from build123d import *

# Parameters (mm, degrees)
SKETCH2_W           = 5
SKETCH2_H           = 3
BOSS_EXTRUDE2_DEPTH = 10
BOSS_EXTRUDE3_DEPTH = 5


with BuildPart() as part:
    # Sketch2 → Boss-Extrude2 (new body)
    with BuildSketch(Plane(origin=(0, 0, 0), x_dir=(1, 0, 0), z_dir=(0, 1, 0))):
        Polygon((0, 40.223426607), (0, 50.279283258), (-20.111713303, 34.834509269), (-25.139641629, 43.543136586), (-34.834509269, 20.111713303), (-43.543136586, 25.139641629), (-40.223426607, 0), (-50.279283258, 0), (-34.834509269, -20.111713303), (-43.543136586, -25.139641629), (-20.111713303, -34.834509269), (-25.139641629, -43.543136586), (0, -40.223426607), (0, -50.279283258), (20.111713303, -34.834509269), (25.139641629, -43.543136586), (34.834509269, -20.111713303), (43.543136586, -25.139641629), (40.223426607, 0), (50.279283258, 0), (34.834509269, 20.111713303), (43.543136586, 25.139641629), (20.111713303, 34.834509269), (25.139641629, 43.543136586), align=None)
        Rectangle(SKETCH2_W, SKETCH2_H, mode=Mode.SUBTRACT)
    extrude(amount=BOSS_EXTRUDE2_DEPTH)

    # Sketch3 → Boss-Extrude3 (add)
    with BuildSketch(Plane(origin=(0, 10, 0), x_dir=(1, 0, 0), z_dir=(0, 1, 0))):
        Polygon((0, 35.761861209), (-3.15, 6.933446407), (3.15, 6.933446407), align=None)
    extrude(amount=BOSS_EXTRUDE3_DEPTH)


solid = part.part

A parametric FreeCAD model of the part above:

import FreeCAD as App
import Part
import Sketcher
Q = App.Units.Quantity

doc = App.newDocument("Part")
body = doc.addObject("PartDesign::Body", "Body")

# Sketch on XZ plane
sketch1 = doc.addObject("Sketcher::SketchObject", "Sketch")
body.addObject(sketch1)
sketch1.AttachmentSupport = (doc.XZ_Plane, [""])
sketch1.MapMode = "FlatFace"
sketch1.addGeometry(Part.LineSegment(App.Vector(0, -40.2, 0), App.Vector(0, -50.3, 0)), False)
sketch1.addGeometry(Part.LineSegment(App.Vector(0, -50.3, 0), App.Vector(-20.1, -34.8, 0)), False)
sketch1.addGeometry(Part.LineSegment(App.Vector(-20.1, -34.8, 0), App.Vector(-25.1, -43.5, 0)), False)
sketch1.addGeometry(Part.LineSegment(App.Vector(-25.1, -43.5, 0), App.Vector(-34.8, -20.1, 0)), False)
sketch1.addGeometry(Part.LineSegment(App.Vector(-34.8, -20.1, 0), App.Vector(-43.5, -25.1, 0)), False)
sketch1.addGeometry(Part.LineSegment(App.Vector(-43.5, -25.1, 0), App.Vector(-40.2, 0, 0)), False)
sketch1.addGeometry(Part.LineSegment(App.Vector(-40.2, 0, 0), App.Vector(-50.3, 0, 0)), False)
sketch1.addGeometry(Part.LineSegment(App.Vector(-50.3, 0, 0), App.Vector(-34.8, 20.1, 0)), False)
sketch1.addGeometry(Part.LineSegment(App.Vector(-34.8, 20.1, 0), App.Vector(-43.5, 25.1, 0)), False)
sketch1.addGeometry(Part.LineSegment(App.Vector(-43.5, 25.1, 0), App.Vector(-20.1, 34.8, 0)), False)
sketch1.addGeometry(Part.LineSegment(App.Vector(-20.1, 34.8, 0), App.Vector(-25.1, 43.5, 0)), False)
sketch1.addGeometry(Part.LineSegment(App.Vector(-25.1, 43.5, 0), App.Vector(0, 40.2, 0)), False)
sketch1.addGeometry(Part.LineSegment(App.Vector(0, 40.2, 0), App.Vector(0, 50.3, 0)), False)
sketch1.addGeometry(Part.LineSegment(App.Vector(0, 50.3, 0), App.Vector(20.1, 34.8, 0)), False)
sketch1.addGeometry(Part.LineSegment(App.Vector(20.1, 34.8, 0), App.Vector(25.1, 43.5, 0)), False)
sketch1.addGeometry(Part.LineSegment(App.Vector(25.1, 43.5, 0), App.Vector(34.8, 20.1, 0)), False)
sketch1.addGeometry(Part.LineSegment(App.Vector(34.8, 20.1, 0), App.Vector(43.5, 25.1, 0)), False)
sketch1.addGeometry(Part.LineSegment(App.Vector(43.5, 25.1, 0), App.Vector(40.2, 0, 0)), False)
sketch1.addGeometry(Part.LineSegment(App.Vector(40.2, 0, 0), App.Vector(50.3, 0, 0)), False)
sketch1.addGeometry(Part.LineSegment(App.Vector(50.3, 0, 0), App.Vector(34.8, -20.1, 0)), False)
sketch1.addGeometry(Part.LineSegment(App.Vector(34.8, -20.1, 0), App.Vector(43.5, -25.1, 0)), False)
sketch1.addGeometry(Part.LineSegment(App.Vector(43.5, -25.1, 0), App.Vector(20.1, -34.8, 0)), False)
sketch1.addGeometry(Part.LineSegment(App.Vector(20.1, -34.8, 0), App.Vector(25.1, -43.5, 0)), False)
sketch1.addGeometry(Part.LineSegment(App.Vector(25.1, -43.5, 0), App.Vector(0, -40.2, 0)), False)
sketch1.addGeometry(Part.LineSegment(App.Vector(2.5, 1.5, 0), App.Vector(-2.5, 1.5, 0)), False)
sketch1.addGeometry(Part.LineSegment(App.Vector(-2.5, 1.5, 0), App.Vector(-2.5, -1.5, 0)), False)
sketch1.addGeometry(Part.LineSegment(App.Vector(-2.5, -1.5, 0), App.Vector(2.5, -1.5, 0)), False)
sketch1.addGeometry(Part.LineSegment(App.Vector(2.5, -1.5, 0), App.Vector(2.5, 1.5, 0)), False)
sketch1.addConstraint(Sketcher.Constraint("Coincident", 0, 2, 1, 1))
sketch1.addConstraint(Sketcher.Constraint("Coincident", 1, 2, 2, 1))
sketch1.addConstraint(Sketcher.Constraint("Coincident", 2, 2, 3, 1))
sketch1.addConstraint(Sketcher.Constraint("Coincident", 3, 2, 4, 1))
sketch1.addConstraint(Sketcher.Constraint("Coincident", 4, 2, 5, 1))
sketch1.addConstraint(Sketcher.Constraint("Coincident", 5, 2, 6, 1))
sketch1.addConstraint(Sketcher.Constraint("Coincident", 6, 2, 7, 1))
sketch1.addConstraint(Sketcher.Constraint("Coincident", 7, 2, 8, 1))
sketch1.addConstraint(Sketcher.Constraint("Coincident", 8, 2, 9, 1))
sketch1.addConstraint(Sketcher.Constraint("Coincident", 9, 2, 10, 1))
sketch1.addConstraint(Sketcher.Constraint("Coincident", 10, 2, 11, 1))
sketch1.addConstraint(Sketcher.Constraint("Coincident", 11, 2, 12, 1))
sketch1.addConstraint(Sketcher.Constraint("Coincident", 12, 2, 13, 1))
sketch1.addConstraint(Sketcher.Constraint("Coincident", 13, 2, 14, 1))
sketch1.addConstraint(Sketcher.Constraint("Coincident", 14, 2, 15, 1))
sketch1.addConstraint(Sketcher.Constraint("Coincident", 15, 2, 16, 1))
sketch1.addConstraint(Sketcher.Constraint("Coincident", 16, 2, 17, 1))
sketch1.addConstraint(Sketcher.Constraint("Coincident", 17, 2, 18, 1))
sketch1.addConstraint(Sketcher.Constraint("Coincident", 18, 2, 19, 1))
sketch1.addConstraint(Sketcher.Constraint("Coincident", 19, 2, 20, 1))
sketch1.addConstraint(Sketcher.Constraint("Coincident", 20, 2, 21, 1))
sketch1.addConstraint(Sketcher.Constraint("Coincident", 21, 2, 22, 1))
sketch1.addConstraint(Sketcher.Constraint("Coincident", 22, 2, 23, 1))
sketch1.addConstraint(Sketcher.Constraint("Coincident", 23, 2, 0, 1))
sketch1.addConstraint(Sketcher.Constraint("Coincident", 24, 2, 25, 1))
sketch1.addConstraint(Sketcher.Constraint("Coincident", 25, 2, 26, 1))
sketch1.addConstraint(Sketcher.Constraint("Coincident", 26, 2, 27, 1))
sketch1.addConstraint(Sketcher.Constraint("Coincident", 27, 2, 24, 1))
sketch1.addConstraint(Sketcher.Constraint("Vertical", 0))
sketch1.addConstraint(Sketcher.Constraint("Horizontal", 6))
sketch1.addConstraint(Sketcher.Constraint("Vertical", 12))
sketch1.addConstraint(Sketcher.Constraint("Horizontal", 18))
sketch1.addConstraint(Sketcher.Constraint("Horizontal", 24))
sketch1.addConstraint(Sketcher.Constraint("Vertical", 25))
sketch1.addConstraint(Sketcher.Constraint("Horizontal", 26))
sketch1.addConstraint(Sketcher.Constraint("Vertical", 27))
sketch1.addConstraint(Sketcher.Constraint("Symmetric", 0, 2, 12, 2, -1, 1))
sketch1.addConstraint(Sketcher.Constraint("Symmetric", 1, 2, 13, 2, -1, 1))
sketch1.addConstraint(Sketcher.Constraint("Symmetric", 2, 2, 14, 2, -1, 1))
sketch1.addConstraint(Sketcher.Constraint("Symmetric", 3, 2, 15, 2, -1, 1))
sketch1.addConstraint(Sketcher.Constraint("Symmetric", 4, 2, 16, 2, -1, 1))
sketch1.addConstraint(Sketcher.Constraint("Symmetric", 5, 2, 17, 2, -1, 1))
sketch1.addConstraint(Sketcher.Constraint("Symmetric", 7, 2, 19, 2, -1, 1))
sketch1.addConstraint(Sketcher.Constraint("Symmetric", 8, 2, 20, 2, -1, 1))
sketch1.addConstraint(Sketcher.Constraint("Symmetric", 9, 2, 21, 2, -1, 1))
sketch1.addConstraint(Sketcher.Constraint("Symmetric", 10, 2, 22, 2, -1, 1))
sketch1.addConstraint(Sketcher.Constraint("Symmetric", 24, 2, 26, 2, -1, 1))
sketch1.addConstraint(Sketcher.Constraint("Symmetric", 9, 2, 13, 2, -2))
sketch1.addConstraint(Sketcher.Constraint("Symmetric", 10, 2, 14, 2, -2))
sketch1.addConstraint(Sketcher.Constraint("Symmetric", 7, 2, 15, 2, -2))
sketch1.addConstraint(Sketcher.Constraint("Symmetric", 8, 2, 16, 2, -2))
sketch1.addConstraint(Sketcher.Constraint("Symmetric", 6, 2, 18, 2, -2))
sketch1.addConstraint(Sketcher.Constraint("Symmetric", 11, 2, 23, 2, -1))
sketch1.addConstraint(Sketcher.Constraint("Perpendicular", 1, 7))
sketch1.addConstraint(Sketcher.Constraint("Perpendicular", 2, 8))
sketch1.addConstraint(Sketcher.Constraint("Perpendicular", 3, 9))
sketch1.addConstraint(Sketcher.Constraint("Perpendicular", 5, 11))
sketch1.addConstraint(Sketcher.Constraint("Equal", 18, 0))
sketch1.addConstraint(Sketcher.Constraint("Equal", 1, 3))
sketch1.addConstraint(Sketcher.Constraint("Equal", 2, 4))
sketch1.addConstraint(Sketcher.Constraint("Equal", 3, 5))
sketch1.addConstraint(Sketcher.Constraint("DistanceX", 24, 2, 24, 1, 5.0))
sketch1.addConstraint(Sketcher.Constraint("DistanceY", 25, 2, 25, 1, 3.0))
sketch1.addConstraint(Sketcher.Constraint("Angle", 2, Q("-120 deg")))
sketch1.addConstraint(Sketcher.Constraint("Distance", 1, 25.35788))
sketch1.addConstraint(Sketcher.Constraint("DistanceX", 6, 2, 6, 1, 10.055857))
sketch1.addConstraint(Sketcher.Constraint("DistanceY", 1, 2, -1, 1, 34.834509))
pad1 = doc.addObject("PartDesign::Pad", "Pad")
body.addObject(pad1)
pad1.Profile = sketch1
pad1.Length = 10
pad1.Reversed = True

# Sketch on XZ plane
sketch2 = doc.addObject("Sketcher::SketchObject", "Sketch001")
body.addObject(sketch2)
sketch2.AttachmentSupport = (doc.XZ_Plane, [""])
sketch2.MapMode = "FlatFace"
sketch2.AttachmentOffset = App.Placement(App.Vector(0, 0, -10), App.Rotation())
sketch2.addGeometry(Part.LineSegment(App.Vector(0, -36, 0), App.Vector(-3, -7, 0)), False)
sketch2.addGeometry(Part.LineSegment(App.Vector(-3, -7, 0), App.Vector(3, -7, 0)), False)
sketch2.addGeometry(Part.LineSegment(App.Vector(3, -7, 0), App.Vector(0, -36, 0)), False)
sketch2.addConstraint(Sketcher.Constraint("Coincident", 0, 2, 1, 1))
sketch2.addConstraint(Sketcher.Constraint("Coincident", 1, 2, 2, 1))
sketch2.addConstraint(Sketcher.Constraint("Coincident", 2, 2, 0, 1))
sketch2.addConstraint(Sketcher.Constraint("Horizontal", 1))
sketch2.addConstraint(Sketcher.Constraint("PointOnObject", 2, 2, -2))
sketch2.addConstraint(Sketcher.Constraint("Equal", 0, 2))
sketch2.addConstraint(Sketcher.Constraint("Distance", 0, 29.0))
sketch2.addConstraint(Sketcher.Constraint("DistanceX", 1, 1, 1, 2, 6.3))
sketch2.addConstraint(Sketcher.Constraint("DistanceY", 2, 2, -1, 1, 35.761861))
pad2 = doc.addObject("PartDesign::Pad", "Pad001")
body.addObject(pad2)
pad2.Profile = sketch2
pad2.Length = 5
pad2.Reversed = True

doc.recompute()
